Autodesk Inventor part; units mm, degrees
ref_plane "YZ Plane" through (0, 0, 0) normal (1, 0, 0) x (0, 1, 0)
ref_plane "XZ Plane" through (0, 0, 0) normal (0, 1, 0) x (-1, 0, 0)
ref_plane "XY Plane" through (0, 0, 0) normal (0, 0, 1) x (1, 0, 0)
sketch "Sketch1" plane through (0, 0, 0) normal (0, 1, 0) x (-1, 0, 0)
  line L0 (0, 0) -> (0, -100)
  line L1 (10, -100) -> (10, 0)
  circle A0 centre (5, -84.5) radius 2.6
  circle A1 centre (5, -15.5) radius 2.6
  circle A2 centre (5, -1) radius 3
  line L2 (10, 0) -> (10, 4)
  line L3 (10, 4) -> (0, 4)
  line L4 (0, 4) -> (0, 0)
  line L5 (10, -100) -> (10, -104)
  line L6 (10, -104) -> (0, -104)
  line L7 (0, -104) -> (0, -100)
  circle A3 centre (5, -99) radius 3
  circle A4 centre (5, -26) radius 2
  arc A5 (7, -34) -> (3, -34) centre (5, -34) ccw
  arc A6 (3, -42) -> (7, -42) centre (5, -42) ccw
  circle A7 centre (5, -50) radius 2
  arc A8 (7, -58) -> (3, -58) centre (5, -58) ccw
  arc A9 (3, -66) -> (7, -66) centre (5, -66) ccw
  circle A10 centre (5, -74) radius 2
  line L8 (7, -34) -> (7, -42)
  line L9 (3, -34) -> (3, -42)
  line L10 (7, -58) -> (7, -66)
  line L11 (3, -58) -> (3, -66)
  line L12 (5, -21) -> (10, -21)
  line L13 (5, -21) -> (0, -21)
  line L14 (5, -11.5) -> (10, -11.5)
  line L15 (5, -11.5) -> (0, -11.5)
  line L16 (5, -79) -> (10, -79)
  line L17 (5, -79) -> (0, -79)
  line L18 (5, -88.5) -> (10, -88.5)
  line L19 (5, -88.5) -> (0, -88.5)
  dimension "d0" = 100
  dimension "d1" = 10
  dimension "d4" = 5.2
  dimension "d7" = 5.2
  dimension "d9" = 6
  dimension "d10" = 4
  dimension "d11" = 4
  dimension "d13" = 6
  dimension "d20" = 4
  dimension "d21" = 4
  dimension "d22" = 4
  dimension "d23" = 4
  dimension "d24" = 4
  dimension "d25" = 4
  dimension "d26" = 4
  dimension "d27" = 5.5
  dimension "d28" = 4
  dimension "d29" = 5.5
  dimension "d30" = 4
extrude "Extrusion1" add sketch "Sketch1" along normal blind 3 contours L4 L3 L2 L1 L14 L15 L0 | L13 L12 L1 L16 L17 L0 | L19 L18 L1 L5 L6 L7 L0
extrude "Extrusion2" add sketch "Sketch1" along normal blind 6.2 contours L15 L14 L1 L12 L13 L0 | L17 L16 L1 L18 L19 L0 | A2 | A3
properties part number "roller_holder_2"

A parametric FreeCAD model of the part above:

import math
import FreeCAD as App
import Part
import Sketcher

doc = App.newDocument("Part")
body = doc.addObject("PartDesign::Body", "Body")
body.AllowCompound = True

sketch1 = body.newObject("Sketcher::SketchObject", "Sketch")
sketch1.AttachmentSupport = (doc.getObject("XZ_Plane"), [""])
sketch1.MapMode = "FlatFace"
sketch1.addGeometry([
    Part.LineSegment(App.Vector(0, 4, 0), App.Vector(0, -11.5, 0)),
    Part.LineSegment(App.Vector(0, -11.5, 0), App.Vector(-10, -11.5, 0)),
    Part.LineSegment(App.Vector(-10, -11.5, 0), App.Vector(-10, 4, 0)),
    Part.LineSegment(App.Vector(-10, 4, 0), App.Vector(0, 4, 0)),
    Part.Circle(App.Vector(-5, -1, 0), App.Vector(0, 0, 1), 3),
    Part.LineSegment(App.Vector(-10, -21, 0), App.Vector(0, -21, 0)),
    Part.LineSegment(App.Vector(0, -21, 0), App.Vector(0, -79, 0)),
    Part.LineSegment(App.Vector(0, -79, 0), App.Vector(-10, -79, 0)),
    Part.LineSegment(App.Vector(-10, -79, 0), App.Vector(-10, -21, 0)),
    Part.Circle(App.Vector(-5, -74, 0), App.Vector(0, 0, 1), 2),
    Part.ArcOfCircle(Part.Circle(App.Vector(-5, -58, 0), App.Vector(0, 0, 1), 2), math.radians(0), math.radians(180)),
    Part.LineSegment(App.Vector(-7, -58, 0), App.Vector(-7, -66, 0)),
    Part.ArcOfCircle(Part.Circle(App.Vector(-5, -66, 0), App.Vector(0, 0, 1), 2), math.radians(180), math.radians(360)),
    Part.LineSegment(App.Vector(-3, -66, 0), App.Vector(-3, -58, 0)),
    Part.Circle(App.Vector(-5, -50, 0), App.Vector(0, 0, 1), 2),
    Part.ArcOfCircle(Part.Circle(App.Vector(-5, -34, 0), App.Vector(0, 0, 1), 2), math.radians(0), math.radians(180)),
    Part.LineSegment(App.Vector(-7, -34, 0), App.Vector(-7, -42, 0)),
    Part.ArcOfCircle(Part.Circle(App.Vector(-5, -42, 0), App.Vector(0, 0, 1), 2), math.radians(180), math.radians(360)),
    Part.LineSegment(App.Vector(-3, -42, 0), App.Vector(-3, -34, 0)),
    Part.Circle(App.Vector(-5, -26, 0), App.Vector(0, 0, 1), 2),
    Part.LineSegment(App.Vector(-10, -88.5, 0), App.Vector(0, -88.5, 0)),
    Part.LineSegment(App.Vector(0, -88.5, 0), App.Vector(0, -104, 0)),
    Part.LineSegment(App.Vector(0, -104, 0), App.Vector(-10, -104, 0)),
    Part.LineSegment(App.Vector(-10, -104, 0), App.Vector(-10, -88.5, 0)),
    Part.Circle(App.Vector(-5, -99, 0), App.Vector(0, 0, 1), 3),
], False)
sketch1.addConstraint([
    Sketcher.Constraint("Coincident", 0, 2, 1, 1),
    Sketcher.Constraint("Coincident", 1, 2, 2, 1),
    Sketcher.Constraint("Coincident", 2, 2, 3, 1),
    Sketcher.Constraint("Coincident", 3, 2, 0, 1),
    Sketcher.Constraint("Coincident", 5, 2, 6, 1),
    Sketcher.Constraint("Coincident", 6, 2, 7, 1),
    Sketcher.Constraint("Coincident", 7, 2, 8, 1),
    Sketcher.Constraint("Coincident", 8, 2, 5, 1),
    Sketcher.Constraint("Tangent", 10, 2, 11, 1),
    Sketcher.Constraint("Tangent", 11, 2, 12, 1),
    Sketcher.Constraint("Tangent", 12, 2, 13, 1),
    Sketcher.Constraint("Tangent", 13, 2, 10, 1),
    Sketcher.Constraint("Tangent", 15, 2, 16, 1),
    Sketcher.Constraint("Tangent", 16, 2, 17, 1),
    Sketcher.Constraint("Tangent", 17, 2, 18, 1),
    Sketcher.Constraint("Tangent", 18, 2, 15, 1),
    Sketcher.Constraint("Coincident", 20, 2, 21, 1),
    Sketcher.Constraint("Coincident", 21, 2, 22, 1),
    Sketcher.Constraint("Coincident", 22, 2, 23, 1),
    Sketcher.Constraint("Coincident", 23, 2, 20, 1),
    Sketcher.Constraint("Vertical", 0),
    Sketcher.Constraint("Horizontal", 1),
    Sketcher.Constraint("Vertical", 2),
    Sketcher.Constraint("Horizontal", 3),
    Sketcher.Constraint("Horizontal", 5),
    Sketcher.Constraint("Vertical", 6),
    Sketcher.Constraint("Horizontal", 7),
    Sketcher.Constraint("Vertical", 8),
    Sketcher.Constraint("Vertical", 11),
    Sketcher.Constraint("Vertical", 13),
    Sketcher.Constraint("Vertical", 16),
    Sketcher.Constraint("Vertical", 18),
    Sketcher.Constraint("Horizontal", 20),
    Sketcher.Constraint("Vertical", 21),
    Sketcher.Constraint("Horizontal", 22),
    Sketcher.Constraint("Vertical", 23),
    Sketcher.Constraint("Equal", 9, 10),
    Sketcher.Constraint("Equal", 12, 14),
    Sketcher.Constraint("Equal", 14, 15),
    Sketcher.Constraint("Equal", 17, 19),
    Sketcher.Constraint("Equal", 4, 24),
    Sketcher.Constraint("PointOnObject", 0, 2, -2),
    Sketcher.Constraint("PointOnObject", 5, 2, -2),
    Sketcher.Constraint("PointOnObject", 20, 2, -2),
    Sketcher.Constraint("Vertical", 4, 3, 9, 3),
    Sketcher.Constraint("Vertical", 9, 3, 10, 3),
    Sketcher.Constraint("Vertical", 12, 3, 14, 3),
    Sketcher.Constraint("Vertical", 14, 3, 15, 3),
    Sketcher.Constraint("Vertical", 17, 3, 19, 3),
    Sketcher.Constraint("Vertical", 19, 3, 24, 3),
    Sketcher.Constraint("Vertical", 2, 2, 7, 2),
    Sketcher.Constraint("Vertical", 8, 2, 22, 2),
    Sketcher.Constraint("Equal", 13, 16),
    Sketcher.Constraint("Equal", 2, 21),
    Sketcher.Constraint("Diameter", 4, 6.0),
    Sketcher.Constraint("Diameter", 9, 4.0),
    Sketcher.Constraint("DistanceX", 1, 2, 1, 1, 10.0),
    Sketcher.Constraint("DistanceY", -1, 1, 2, 2, 4.0),
    Sketcher.Constraint("DistanceY", 6, 2, 6, 1, 58.0),
    Sketcher.Constraint("DistanceY", 11, 2, 11, 1, 8.0),
    Sketcher.Constraint("DistanceY", 0, 2, 0, 1, 15.5),
    Sketcher.Constraint("DistanceX", 4, 3, -1, 1, 5.0),
    Sketcher.Constraint("DistanceY", 4, 3, -1, 1, 1.0),
    Sketcher.Constraint("DistanceY", 9, 3, -1, 1, 74.0),
    Sketcher.Constraint("DistanceY", 10, 3, -1, 1, 58.0),
    Sketcher.Constraint("DistanceY", 14, 3, -1, 1, 50.0),
    Sketcher.Constraint("DistanceY", 15, 3, -1, 1, 34.0),
    Sketcher.Constraint("DistanceY", 19, 3, -1, 1, 26.0),
    Sketcher.Constraint("DistanceY", 24, 3, -1, 1, 99.0),
    Sketcher.Constraint("DistanceY", 5, 2, -1, 1, 21.0),
    Sketcher.Constraint("DistanceY", 21, 2, -1, 1, 104.0),
])
pad1 = body.newObject("PartDesign::Pad", "Pad")
pad1.Profile = sketch1
pad1.Length = 3
pad1.Reversed = True

sketch2 = body.newObject("Sketcher::SketchObject", "Sketch001")
sketch2.AttachmentSupport = (doc.getObject("XZ_Plane"), [""])
sketch2.MapMode = "FlatFace"
sketch2.addGeometry([
    Part.LineSegment(App.Vector(-10, -11.5, 0), App.Vector(0, -11.5, 0)),
    Part.LineSegment(App.Vector(0, -11.5, 0), App.Vector(0, -21, 0)),
    Part.LineSegment(App.Vector(0, -21, 0), App.Vector(-10, -21, 0)),
    Part.LineSegment(App.Vector(-10, -21, 0), App.Vector(-10, -11.5, 0)),
    Part.Circle(App.Vector(-5, -15.5, 0), App.Vector(0, 0, 1), 2.6),
    Part.LineSegment(App.Vector(-10, -79, 0), App.Vector(0, -79, 0)),
    Part.LineSegment(App.Vector(0, -79, 0), App.Vector(0, -88.5, 0)),
    Part.LineSegment(App.Vector(0, -88.5, 0), App.Vector(-10, -88.5, 0)),
    Part.LineSegment(App.Vector(-10, -88.5, 0), App.Vector(-10, -79, 0)),
    Part.Circle(App.Vector(-5, -84.5, 0), App.Vector(0, 0, 1), 2.6),
    Part.Circle(App.Vector(-5, -1, 0), App.Vector(0, 0, 1), 3),
    Part.Circle(App.Vector(-5, -99, 0), App.Vector(0, 0, 1), 3),
], False)
sketch2.addConstraint([
    Sketcher.Constraint("Coincident", 0, 2, 1, 1),
    Sketcher.Constraint("Coincident", 1, 2, 2, 1),
    Sketcher.Constraint("Coincident", 2, 2, 3, 1),
    Sketcher.Constraint("Coincident", 3, 2, 0, 1),
    Sketcher.Constraint("Coincident", 5, 2, 6, 1),
    Sketcher.Constraint("Coincident", 6, 2, 7, 1),
    Sketcher.Constraint("Coincident", 7, 2, 8, 1),
    Sketcher.Constraint("Coincident", 8, 2, 5, 1),
    Sketcher.Constraint("Horizontal", 0),
    Sketcher.Constraint("Vertical", 1),
    Sketcher.Constraint("Horizontal", 2),
    Sketcher.Constraint("Vertical", 3),
    Sketcher.Constraint("Horizontal", 5),
    Sketcher.Constraint("Vertical", 6),
    Sketcher.Constraint("Horizontal", 7),
    Sketcher.Constraint("Vertical", 8),
    Sketcher.Constraint("Equal", 4, 9),
    Sketcher.Constraint("Equal", 10, 11),
    Sketcher.Constraint("PointOnObject", 0, 2, -2),
    Sketcher.Constraint("PointOnObject", 5, 2, -2),
    Sketcher.Constraint("Vertical", 4, 3, 9, 3),
    Sketcher.Constraint("Vertical", 9, 3, 10, 3),
    Sketcher.Constraint("Vertical", 10, 3, 11, 3),
    Sketcher.Constraint("Vertical", 3, 2, 7, 2),
    Sketcher.Constraint("Equal", 3, 6),
    Sketcher.Constraint("Diameter", 10, 6.0),
    Sketcher.Constraint("Diameter", 4, 5.2),
    Sketcher.Constraint("DistanceX", 0, 1, 0, 2, 10.0),
    Sketcher.Constraint("DistanceY", 4, 3, 0, 2, 4.0),
    Sketcher.Constraint("DistanceY", 6, 2, 9, 3, 4.0),
    Sketcher.Constraint("DistanceY", 1, 2, 4, 3, 5.5),
    Sketcher.Constraint("DistanceX", 4, 3, -1, 1, 5.0),
    Sketcher.Constraint("DistanceY", 10, 3, -1, 1, 1.0),
    Sketcher.Constraint("DistanceY", 11, 3, -1, 1, 99.0),
    Sketcher.Constraint("DistanceY", 1, 2, -1, 1, 21.0),
    Sketcher.Constraint("DistanceY", 5, 2, -1, 1, 79.0),
])
pad2 = body.newObject("PartDesign::Pad", "Pad001")
pad2.Profile = sketch2
pad2.Length = 6.2
pad2.Reversed = True

doc.recompute()
